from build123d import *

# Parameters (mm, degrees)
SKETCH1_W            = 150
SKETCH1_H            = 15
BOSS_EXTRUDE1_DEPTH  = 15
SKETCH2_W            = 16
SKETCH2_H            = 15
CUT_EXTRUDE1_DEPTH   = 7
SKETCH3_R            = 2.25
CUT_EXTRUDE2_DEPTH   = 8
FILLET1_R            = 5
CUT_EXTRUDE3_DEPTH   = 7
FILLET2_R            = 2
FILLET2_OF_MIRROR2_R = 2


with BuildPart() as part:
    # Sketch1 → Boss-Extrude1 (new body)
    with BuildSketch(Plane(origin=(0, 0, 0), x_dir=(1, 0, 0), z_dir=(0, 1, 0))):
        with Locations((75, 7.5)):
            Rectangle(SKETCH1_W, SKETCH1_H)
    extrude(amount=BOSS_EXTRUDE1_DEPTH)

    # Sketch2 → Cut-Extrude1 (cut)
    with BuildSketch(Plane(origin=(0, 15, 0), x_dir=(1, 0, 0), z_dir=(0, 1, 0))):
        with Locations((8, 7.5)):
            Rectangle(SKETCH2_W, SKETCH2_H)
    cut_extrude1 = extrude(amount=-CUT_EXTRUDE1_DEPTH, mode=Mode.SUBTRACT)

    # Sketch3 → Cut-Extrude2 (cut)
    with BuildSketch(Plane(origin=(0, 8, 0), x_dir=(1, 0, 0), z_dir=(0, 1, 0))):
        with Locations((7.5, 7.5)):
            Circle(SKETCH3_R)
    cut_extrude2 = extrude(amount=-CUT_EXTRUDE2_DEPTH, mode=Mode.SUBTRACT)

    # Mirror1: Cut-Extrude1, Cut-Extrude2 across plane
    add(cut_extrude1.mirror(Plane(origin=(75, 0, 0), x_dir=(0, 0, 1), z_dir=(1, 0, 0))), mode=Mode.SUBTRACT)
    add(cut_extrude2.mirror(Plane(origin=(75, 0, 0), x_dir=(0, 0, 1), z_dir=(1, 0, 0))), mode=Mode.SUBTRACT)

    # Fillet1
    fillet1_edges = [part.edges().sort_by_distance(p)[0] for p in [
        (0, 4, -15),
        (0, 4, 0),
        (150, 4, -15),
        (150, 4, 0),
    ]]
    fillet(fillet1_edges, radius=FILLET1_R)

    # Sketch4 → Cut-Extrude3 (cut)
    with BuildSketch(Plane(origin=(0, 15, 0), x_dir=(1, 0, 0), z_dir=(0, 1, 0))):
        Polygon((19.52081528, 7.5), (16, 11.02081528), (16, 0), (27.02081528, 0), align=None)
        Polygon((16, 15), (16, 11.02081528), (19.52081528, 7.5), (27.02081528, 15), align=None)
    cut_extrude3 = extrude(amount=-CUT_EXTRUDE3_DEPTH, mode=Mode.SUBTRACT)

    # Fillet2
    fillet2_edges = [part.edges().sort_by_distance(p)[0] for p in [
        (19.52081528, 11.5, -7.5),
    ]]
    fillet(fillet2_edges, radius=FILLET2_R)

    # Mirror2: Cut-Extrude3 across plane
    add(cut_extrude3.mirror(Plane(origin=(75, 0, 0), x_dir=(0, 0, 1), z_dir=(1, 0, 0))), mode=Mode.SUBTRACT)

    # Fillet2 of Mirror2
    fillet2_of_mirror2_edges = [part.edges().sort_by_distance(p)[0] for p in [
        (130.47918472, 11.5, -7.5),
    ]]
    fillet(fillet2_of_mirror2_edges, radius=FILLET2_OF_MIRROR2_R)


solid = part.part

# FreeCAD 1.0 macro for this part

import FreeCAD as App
import Part
import Sketcher
from FreeCAD import Vector


def edges_at(feature, points):
    """Names of the edges that pass closest to the given points."""
    edges = feature.Shape.Edges
    near = lambda p: min(range(len(edges)), key=lambda i: edges[i].distToShape(Part.Vertex(*p))[0])
    return sorted({f"Edge{near(p) + 1}" for p in points})


def add_polygon(sketch, points):
    """Adds a closed chain of lines whose ends are joined by coincident constraints."""
    first, n = sketch.GeometryCount, len(points)
    for a, b in zip(points, points[1:] + points[:1]):
        sketch.addGeometry(Part.LineSegment(App.Vector(*a, 0), App.Vector(*b, 0)), False)
    for i in range(n):
        sketch.addConstraint(Sketcher.Constraint("Coincident", first + i, 2, first + (i + 1) % n, 1))

doc = App.newDocument("Part")
body = doc.addObject("PartDesign::Body", "Body")

sketch1 = doc.addObject("Sketcher::SketchObject", "Sketch")
body.addObject(sketch1)
sketch1.AttachmentSupport = (doc.XZ_Plane, [""])
sketch1.MapMode = "FlatFace"
add_polygon(sketch1, [(0, -15), (0, 0), (150, 0), (150, -15)])
sketch1.addConstraint([
    Sketcher.Constraint("Vertical", 0),
    Sketcher.Constraint("Horizontal", 1),
    Sketcher.Constraint("Vertical", 2),
    Sketcher.Constraint("Horizontal", 3),
    Sketcher.Constraint("Coincident", 0, 2, -1, 1),
    Sketcher.Constraint("DistanceX", 1, 1, 1, 2, 150.0),
    Sketcher.Constraint("DistanceY", 0, 1, 0, 2, 15.0),
])
pad1 = doc.addObject("PartDesign::Pad", "Pad")
body.addObject(pad1)
pad1.Profile = sketch1
pad1.Length = 15
pad1.Reversed = True

sketch2 = doc.addObject("Sketcher::SketchObject", "Sketch001")
body.addObject(sketch2)
sketch2.AttachmentSupport = (doc.XZ_Plane, [""])
sketch2.MapMode = "FlatFace"
sketch2.AttachmentOffset = App.Placement(Vector(0, 0, -15), App.Rotation())
add_polygon(sketch2, [(0, -15), (0, 0), (16, 0), (16, -15)])
sketch2.addConstraint([
    Sketcher.Constraint("Vertical", 0),
    Sketcher.Constraint("Horizontal", 1),
    Sketcher.Constraint("Vertical", 2),
    Sketcher.Constraint("Horizontal", 3),
    Sketcher.Constraint("Coincident", 0, 2, -1, 1),
    Sketcher.Constraint("DistanceX", 1, 1, 1, 2, 16.0),
    Sketcher.Constraint("DistanceY", 0, 1, 0, 2, 15.0),
])
pocket1 = doc.addObject("PartDesign::Pocket", "Pocket")
body.addObject(pocket1)
pocket1.Profile = sketch2
pocket1.Length = 7
pocket1.Reversed = True

sketch3 = doc.addObject("Sketcher::SketchObject", "Sketch002")
body.addObject(sketch3)
sketch3.AttachmentSupport = (doc.XZ_Plane, [""])
sketch3.MapMode = "FlatFace"
sketch3.AttachmentOffset = App.Placement(Vector(0, 0, -8), App.Rotation())
sketch3.addGeometry(Part.Circle(Vector(7.5, -7.5, 0), Vector(0, 0, 1), 2.2), False)
sketch3.addConstraint([
    Sketcher.Constraint("Diameter", 0, 4.5),
    Sketcher.Constraint("DistanceX", -1, 1, 0, 3, 7.5),
    Sketcher.Constraint("DistanceY", 0, 3, -1, 1, 7.5),
])
pocket2 = doc.addObject("PartDesign::Pocket", "Pocket001")
body.addObject(pocket2)
pocket2.Profile = sketch3
pocket2.Length = 8
pocket2.Reversed = True
doc.recompute()

datumplane = doc.addObject("PartDesign::Plane", "DatumPlane")
body.addObject(datumplane)
datumplane.AttachmentSupport = (doc.YZ_Plane, [""])
datumplane.MapMode = "FlatFace"
datumplane.AttachmentOffset = App.Placement(Vector(0, 0, 75), App.Rotation())
mirrored = doc.addObject("PartDesign::Mirrored", "Mirrored")
body.addObject(mirrored)
mirrored.Originals = [pocket1, pocket2]
mirrored.MirrorPlane = (datumplane, [""])
body.Tip = mirrored
doc.recompute()

fillet = doc.addObject("PartDesign::Fillet", "Fillet")
body.addObject(fillet)
fillet.Base = (mirrored, edges_at(mirrored, [
    (0, 4, -15),
    (0, 4, 0),
    (150, 4, -15),
    (150, 4, 0),
]))
fillet.Radius = 5

sketch4 = doc.addObject("Sketcher::SketchObject", "Sketch003")
body.addObject(sketch4)
sketch4.AttachmentSupport = (doc.XZ_Plane, [""])
sketch4.MapMode = "FlatFace"
sketch4.AttachmentOffset = App.Placement(Vector(0, 0, -15), App.Rotation())
add_polygon(sketch4, [(16, 0), (27, 0), (20, -8), (27, -15), (16, -15)])
sketch4.addConstraint([
    Sketcher.Constraint("Horizontal", 0),
    Sketcher.Constraint("Horizontal", 3),
    Sketcher.Constraint("Vertical", 4),
    Sketcher.Constraint("PointOnObject", 0, 2, -1),
    Sketcher.Constraint("Perpendicular", 1, 2),
    Sketcher.Constraint("Vertical", 0, 2, 2, 2),
    Sketcher.Constraint("Equal", 1, 2),
    Sketcher.Constraint("DistanceY", 4, 1, 4, 2, 15.0),
    Sketcher.Constraint("DistanceX", -1, 1, 3, 2, 16.0),
    Sketcher.Constraint("DistanceX", 0, 1, 0, 2, 11.020815),
])
pocket3 = doc.addObject("PartDesign::Pocket", "Pocket002")
body.addObject(pocket3)
pocket3.Profile = sketch4
pocket3.Length = 7
pocket3.Reversed = True
doc.recompute()

fillet2 = doc.addObject("PartDesign::Fillet", "Fillet001")
body.addObject(fillet2)
fillet2.Base = (pocket3, edges_at(pocket3, [(19.521, 11.5, -7.5)]))
fillet2.Radius = 2
doc.recompute()

datumplane2 = doc.addObject("PartDesign::Plane", "DatumPlane001")
body.addObject(datumplane2)
datumplane2.AttachmentSupport = (doc.YZ_Plane, [""])
datumplane2.MapMode = "FlatFace"
datumplane2.AttachmentOffset = App.Placement(Vector(0, 0, 75), App.Rotation())
mirrored2 = doc.addObject("PartDesign::Mirrored", "Mirrored001")
body.addObject(mirrored2)
mirrored2.Originals = [pocket3]
mirrored2.MirrorPlane = (datumplane2, [""])
body.Tip = mirrored2
doc.recompute()

fillet3 = doc.addObject("PartDesign::Fillet", "Fillet002")
body.addObject(fillet3)
fillet3.Base = (mirrored2, edges_at(mirrored2, [(130.479, 11.5, -7.5)]))
fillet3.Radius = 2

doc.recompute()
